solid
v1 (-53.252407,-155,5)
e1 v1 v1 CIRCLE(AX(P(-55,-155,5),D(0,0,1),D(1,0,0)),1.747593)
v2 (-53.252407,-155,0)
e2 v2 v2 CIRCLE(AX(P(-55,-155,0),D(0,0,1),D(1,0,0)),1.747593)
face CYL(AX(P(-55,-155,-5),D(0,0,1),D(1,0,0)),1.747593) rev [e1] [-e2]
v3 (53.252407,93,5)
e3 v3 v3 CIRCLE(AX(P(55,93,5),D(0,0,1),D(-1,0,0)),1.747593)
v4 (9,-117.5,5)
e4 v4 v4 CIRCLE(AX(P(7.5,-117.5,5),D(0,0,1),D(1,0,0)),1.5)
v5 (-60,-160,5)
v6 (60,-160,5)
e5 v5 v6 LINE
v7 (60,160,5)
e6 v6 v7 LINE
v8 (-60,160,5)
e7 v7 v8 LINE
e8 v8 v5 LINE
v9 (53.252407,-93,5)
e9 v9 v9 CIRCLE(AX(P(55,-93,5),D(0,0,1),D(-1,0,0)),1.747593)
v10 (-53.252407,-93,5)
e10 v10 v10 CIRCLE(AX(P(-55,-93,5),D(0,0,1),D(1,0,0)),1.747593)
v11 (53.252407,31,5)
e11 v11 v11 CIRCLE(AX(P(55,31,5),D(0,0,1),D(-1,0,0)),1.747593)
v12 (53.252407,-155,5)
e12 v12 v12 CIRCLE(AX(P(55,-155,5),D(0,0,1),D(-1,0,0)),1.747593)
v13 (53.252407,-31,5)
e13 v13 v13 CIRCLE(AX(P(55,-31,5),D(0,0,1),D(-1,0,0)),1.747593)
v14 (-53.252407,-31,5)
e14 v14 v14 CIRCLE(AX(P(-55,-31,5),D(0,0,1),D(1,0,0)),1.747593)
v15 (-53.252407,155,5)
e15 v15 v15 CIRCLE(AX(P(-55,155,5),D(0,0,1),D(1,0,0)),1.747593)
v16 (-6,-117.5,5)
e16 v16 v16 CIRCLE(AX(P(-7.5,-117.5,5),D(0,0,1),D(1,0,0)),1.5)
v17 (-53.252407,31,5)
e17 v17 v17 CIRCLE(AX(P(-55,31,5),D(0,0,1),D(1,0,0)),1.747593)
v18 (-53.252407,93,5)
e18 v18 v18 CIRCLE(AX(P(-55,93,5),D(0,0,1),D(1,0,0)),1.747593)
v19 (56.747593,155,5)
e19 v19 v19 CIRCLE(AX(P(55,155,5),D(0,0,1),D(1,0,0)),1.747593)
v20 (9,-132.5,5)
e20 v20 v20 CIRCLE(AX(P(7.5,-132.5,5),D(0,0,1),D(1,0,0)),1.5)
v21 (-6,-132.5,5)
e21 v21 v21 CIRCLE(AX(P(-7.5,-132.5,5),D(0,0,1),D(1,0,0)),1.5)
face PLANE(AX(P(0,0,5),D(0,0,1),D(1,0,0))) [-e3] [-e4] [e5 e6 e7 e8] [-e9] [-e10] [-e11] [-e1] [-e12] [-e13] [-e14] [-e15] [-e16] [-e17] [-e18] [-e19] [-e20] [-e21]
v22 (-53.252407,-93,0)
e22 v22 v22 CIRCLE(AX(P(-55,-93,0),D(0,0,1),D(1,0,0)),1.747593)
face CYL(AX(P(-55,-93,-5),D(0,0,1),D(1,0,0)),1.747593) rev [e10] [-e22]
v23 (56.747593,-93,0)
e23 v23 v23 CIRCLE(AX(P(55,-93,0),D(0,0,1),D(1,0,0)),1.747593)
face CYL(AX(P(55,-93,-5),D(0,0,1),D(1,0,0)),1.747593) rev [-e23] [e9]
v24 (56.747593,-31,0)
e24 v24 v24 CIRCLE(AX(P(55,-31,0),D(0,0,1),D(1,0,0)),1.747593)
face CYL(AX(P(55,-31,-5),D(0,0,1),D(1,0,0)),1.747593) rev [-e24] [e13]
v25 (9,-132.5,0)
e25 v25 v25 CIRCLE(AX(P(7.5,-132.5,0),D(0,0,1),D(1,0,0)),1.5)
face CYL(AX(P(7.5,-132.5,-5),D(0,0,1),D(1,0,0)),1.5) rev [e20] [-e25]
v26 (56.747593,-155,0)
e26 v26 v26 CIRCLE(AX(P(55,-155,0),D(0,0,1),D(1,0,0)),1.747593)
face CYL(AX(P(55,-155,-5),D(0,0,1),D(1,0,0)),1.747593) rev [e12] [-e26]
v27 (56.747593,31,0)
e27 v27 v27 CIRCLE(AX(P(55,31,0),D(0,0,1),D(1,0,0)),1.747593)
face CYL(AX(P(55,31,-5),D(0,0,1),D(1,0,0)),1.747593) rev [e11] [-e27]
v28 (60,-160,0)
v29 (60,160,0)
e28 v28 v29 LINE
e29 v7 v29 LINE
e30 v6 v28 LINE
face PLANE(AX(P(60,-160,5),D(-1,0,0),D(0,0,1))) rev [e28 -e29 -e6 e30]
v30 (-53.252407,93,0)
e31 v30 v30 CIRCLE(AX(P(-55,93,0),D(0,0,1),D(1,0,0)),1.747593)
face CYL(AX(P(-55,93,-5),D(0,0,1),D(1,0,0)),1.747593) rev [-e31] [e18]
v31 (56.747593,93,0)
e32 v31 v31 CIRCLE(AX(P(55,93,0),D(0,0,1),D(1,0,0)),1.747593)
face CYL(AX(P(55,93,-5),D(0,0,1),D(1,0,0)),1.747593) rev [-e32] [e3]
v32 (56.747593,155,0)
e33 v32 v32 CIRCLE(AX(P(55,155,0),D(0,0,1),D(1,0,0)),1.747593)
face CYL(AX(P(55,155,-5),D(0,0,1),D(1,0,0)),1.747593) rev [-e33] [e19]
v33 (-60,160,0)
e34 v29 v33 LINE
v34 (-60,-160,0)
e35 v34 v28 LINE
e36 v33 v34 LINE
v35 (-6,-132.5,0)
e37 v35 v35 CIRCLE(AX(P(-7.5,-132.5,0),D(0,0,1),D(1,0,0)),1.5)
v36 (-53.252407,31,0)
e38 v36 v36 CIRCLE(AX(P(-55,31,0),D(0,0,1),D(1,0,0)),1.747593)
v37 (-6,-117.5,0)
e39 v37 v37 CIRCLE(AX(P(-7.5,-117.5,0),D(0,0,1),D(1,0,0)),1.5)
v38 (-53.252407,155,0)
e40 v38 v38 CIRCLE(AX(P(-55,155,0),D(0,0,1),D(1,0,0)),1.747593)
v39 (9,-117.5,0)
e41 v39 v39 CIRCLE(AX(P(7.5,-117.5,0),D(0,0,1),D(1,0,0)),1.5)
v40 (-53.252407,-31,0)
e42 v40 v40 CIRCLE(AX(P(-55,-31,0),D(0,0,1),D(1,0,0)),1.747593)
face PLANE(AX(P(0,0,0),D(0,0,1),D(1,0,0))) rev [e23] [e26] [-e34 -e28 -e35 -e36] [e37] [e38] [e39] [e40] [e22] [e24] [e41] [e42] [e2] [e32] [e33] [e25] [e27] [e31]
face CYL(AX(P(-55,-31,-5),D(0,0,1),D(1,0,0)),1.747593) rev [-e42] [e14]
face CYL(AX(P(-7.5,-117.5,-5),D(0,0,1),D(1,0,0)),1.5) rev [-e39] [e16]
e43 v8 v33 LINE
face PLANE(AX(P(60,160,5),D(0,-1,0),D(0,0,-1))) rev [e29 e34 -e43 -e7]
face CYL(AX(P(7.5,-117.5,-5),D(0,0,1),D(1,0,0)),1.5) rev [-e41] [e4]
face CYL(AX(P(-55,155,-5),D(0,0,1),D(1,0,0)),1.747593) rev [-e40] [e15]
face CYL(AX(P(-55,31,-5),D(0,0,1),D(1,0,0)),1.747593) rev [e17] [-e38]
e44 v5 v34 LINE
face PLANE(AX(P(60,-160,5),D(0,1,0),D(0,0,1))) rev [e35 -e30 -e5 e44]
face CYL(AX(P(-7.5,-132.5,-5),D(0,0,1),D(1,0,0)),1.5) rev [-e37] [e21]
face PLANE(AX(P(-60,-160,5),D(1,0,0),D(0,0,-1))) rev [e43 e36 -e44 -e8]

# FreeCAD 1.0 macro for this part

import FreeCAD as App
import Part
import Sketcher
from FreeCAD import Vector

doc = App.newDocument("Part")
body = doc.addObject("PartDesign::Body", "Body")

# Sketch on XY plane
sketch1 = body.newObject("Sketcher::SketchObject", "Sketch")
sketch1.AttachmentSupport = (doc.getObject("XY_Plane"), [""])
sketch1.MapMode = "FlatFace"
sketch1.addGeometry([
    Part.LineSegment(Vector(-60, 160, 0), Vector(-60, -160, 0)),
    Part.LineSegment(Vector(-60, -160, 0), Vector(60, -160, 0)),
    Part.LineSegment(Vector(60, -160, 0), Vector(60, 160, 0)),
    Part.LineSegment(Vector(60, 160, 0), Vector(-60, 160, 0)),
], False)
sketch1.addConstraint([
    Sketcher.Constraint("Coincident", 0, 2, 1, 1),
    Sketcher.Constraint("Coincident", 1, 2, 2, 1),
    Sketcher.Constraint("Coincident", 2, 2, 3, 1),
    Sketcher.Constraint("Coincident", 3, 2, 0, 1),
    Sketcher.Constraint("Vertical", 0),
    Sketcher.Constraint("Horizontal", 1),
    Sketcher.Constraint("Vertical", 2),
    Sketcher.Constraint("Horizontal", 3),
    Sketcher.Constraint("Symmetric", 0, 2, 2, 2, -1, 1),
    Sketcher.Constraint("DistanceX", 1, 1, 1, 2, 120.0),
    Sketcher.Constraint("DistanceY", 0, 2, 0, 1, 320.0),
])
pad1 = body.newObject("PartDesign::Pad", "Pad")
pad1.Profile = sketch1
pad1.Length = 5

# Sketch on XY plane
sketch2 = body.newObject("Sketcher::SketchObject", "Sketch001")
sketch2.AttachmentSupport = (doc.getObject("XY_Plane"), [""])
sketch2.MapMode = "FlatFace"
sketch2.AttachmentOffset = App.Placement(Vector(0, 0, 5), App.Rotation())
sketch2.addGeometry([
    Part.Circle(Vector(-55, 155, 0), Vector(0, 0, 1), 1.747593),  # 0
    Part.Circle(Vector(55, 155, 0), Vector(0, 0, 1), 1.747593),  # 1
    Part.Circle(Vector(-55, 93, 0), Vector(0, 0, 1), 1.747593),  # 2
    Part.Circle(Vector(-55, 31, 0), Vector(0, 0, 1), 1.747593),  # 3
    Part.Circle(Vector(-55, -31, 0), Vector(0, 0, 1), 1.747593),  # 4
    Part.Circle(Vector(-55, -93, 0), Vector(0, 0, 1), 1.747593),  # 5
    Part.Circle(Vector(-55, -155, 0), Vector(0, 0, 1), 1.747593),  # 6
    Part.Circle(Vector(55, 93, 0), Vector(0, 0, 1), 1.747593),  # 7
    Part.Circle(Vector(55, 31, 0), Vector(0, 0, 1), 1.747593),  # 8
    Part.Circle(Vector(55, -31, 0), Vector(0, 0, 1), 1.747593),  # 9
    Part.Circle(Vector(55, -93, 0), Vector(0, 0, 1), 1.747593),  # 10
    Part.Circle(Vector(-7.5, -117.5, 0), Vector(0, 0, 1), 1.5),  # 11
    Part.Circle(Vector(7.5, -117.5, 0), Vector(0, 0, 1), 1.5),  # 12
    Part.Circle(Vector(7.5, -132.5, 0), Vector(0, 0, 1), 1.5),  # 13
    Part.Circle(Vector(-7.5, -132.5, 0), Vector(0, 0, 1), 1.5),  # 14
    Part.Circle(Vector(55, -155, 0), Vector(0, 0, 1), 1.747593),  # 15
], False)
sketch2.addConstraint([
    Sketcher.Constraint("Equal", 0, 1),
    Sketcher.Constraint("Equal", 1, 2),
    Sketcher.Constraint("Equal", 2, 3),
    Sketcher.Constraint("Equal", 3, 4),
    Sketcher.Constraint("Equal", 4, 5),
    Sketcher.Constraint("Equal", 5, 6),
    Sketcher.Constraint("Equal", 6, 7),
    Sketcher.Constraint("Equal", 7, 8),
    Sketcher.Constraint("Equal", 8, 9),
    Sketcher.Constraint("Equal", 9, 10),
    Sketcher.Constraint("Equal", 11, 12),
    Sketcher.Constraint("Equal", 12, 13),
    Sketcher.Constraint("Equal", 13, 14),
    Sketcher.Constraint("Equal", 10, 15),
    Sketcher.Constraint("Symmetric", 1, 3, 6, 3, -1, 1),
    Sketcher.Constraint("Symmetric", 5, 3, 7, 3, -1, 1),
    Sketcher.Constraint("Symmetric", 4, 3, 8, 3, -1, 1),
    Sketcher.Constraint("Symmetric", 3, 3, 9, 3, -1, 1),
    Sketcher.Constraint("Symmetric", 2, 3, 10, 3, -1, 1),
    Sketcher.Constraint("Symmetric", 0, 3, 15, 3, -1, 1),
    Sketcher.Constraint("Symmetric", 0, 3, 1, 3, -2),
    Sketcher.Constraint("Symmetric", 2, 3, 7, 3, -2),
    Sketcher.Constraint("Symmetric", 3, 3, 8, 3, -2),
    Sketcher.Constraint("Symmetric", 11, 3, 12, 3, -2),
    Sketcher.Constraint("Symmetric", 13, 3, 14, 3, -2),
    Sketcher.Constraint("Vertical", 0, 3, 2, 3),
    Sketcher.Constraint("Vertical", 2, 3, 3, 3),
    Sketcher.Constraint("Vertical", 12, 3, 13, 3),
    Sketcher.Constraint("Diameter", 11, 3.0),
    Sketcher.Constraint("DistanceX", 0, 3, -1, 1, 55.0),
    Sketcher.Constraint("DistanceY", -1, 1, 0, 3, 155.0),
    Sketcher.Constraint("DistanceY", -1, 1, 2, 3, 93.0),
    Sketcher.Constraint("DistanceY", -1, 1, 3, 3, 31.0),
    Sketcher.Constraint("DistanceX", 11, 3, 12, 3, 15.0),
    Sketcher.Constraint("DistanceY", 13, 3, 12, 3, 15.0),
    Sketcher.Constraint("DistanceY", 11, 3, -1, 1, 117.5),
    Sketcher.Constraint("Diameter", 0, 3.495186),
])
pocket1 = body.newObject("PartDesign::Pocket", "Pocket")
pocket1.Profile = sketch2
pocket1.Length = 10

doc.recompute()
